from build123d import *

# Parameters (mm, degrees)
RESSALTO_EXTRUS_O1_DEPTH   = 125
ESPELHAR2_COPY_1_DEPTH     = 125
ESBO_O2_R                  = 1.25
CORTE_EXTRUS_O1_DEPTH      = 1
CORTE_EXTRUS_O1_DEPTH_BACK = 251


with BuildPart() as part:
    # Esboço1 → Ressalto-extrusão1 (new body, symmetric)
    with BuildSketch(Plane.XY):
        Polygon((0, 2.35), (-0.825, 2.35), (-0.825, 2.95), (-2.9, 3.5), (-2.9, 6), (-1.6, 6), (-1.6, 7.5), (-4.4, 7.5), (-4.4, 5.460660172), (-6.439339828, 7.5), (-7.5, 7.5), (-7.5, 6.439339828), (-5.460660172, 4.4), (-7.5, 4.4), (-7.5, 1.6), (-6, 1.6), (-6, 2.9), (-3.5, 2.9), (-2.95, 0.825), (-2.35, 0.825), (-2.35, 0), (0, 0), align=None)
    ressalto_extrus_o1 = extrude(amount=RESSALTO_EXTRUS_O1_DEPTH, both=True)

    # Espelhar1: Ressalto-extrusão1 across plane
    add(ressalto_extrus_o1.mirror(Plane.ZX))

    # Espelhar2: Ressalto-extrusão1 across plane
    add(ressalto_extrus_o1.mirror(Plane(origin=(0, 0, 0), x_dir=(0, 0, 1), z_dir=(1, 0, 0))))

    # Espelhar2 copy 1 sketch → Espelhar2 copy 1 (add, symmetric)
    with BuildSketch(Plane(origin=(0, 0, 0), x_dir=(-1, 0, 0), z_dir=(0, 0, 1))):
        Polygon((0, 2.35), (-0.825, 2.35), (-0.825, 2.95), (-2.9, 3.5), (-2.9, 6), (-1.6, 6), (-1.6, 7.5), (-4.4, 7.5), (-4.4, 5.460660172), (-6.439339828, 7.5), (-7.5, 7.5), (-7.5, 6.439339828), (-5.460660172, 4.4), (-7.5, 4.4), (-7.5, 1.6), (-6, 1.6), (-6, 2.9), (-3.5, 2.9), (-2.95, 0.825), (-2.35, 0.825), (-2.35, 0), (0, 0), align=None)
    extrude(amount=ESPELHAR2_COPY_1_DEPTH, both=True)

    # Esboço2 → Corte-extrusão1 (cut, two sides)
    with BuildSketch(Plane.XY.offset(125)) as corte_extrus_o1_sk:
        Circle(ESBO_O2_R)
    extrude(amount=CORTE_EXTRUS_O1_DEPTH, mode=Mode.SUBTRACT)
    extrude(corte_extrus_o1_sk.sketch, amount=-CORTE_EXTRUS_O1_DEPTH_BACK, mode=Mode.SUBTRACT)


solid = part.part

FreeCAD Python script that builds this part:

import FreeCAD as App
import Part
import Sketcher
from FreeCAD import Vector
Q = App.Units.Quantity


def add_polygon(sketch, points):
    """Adds a closed chain of lines whose ends are joined by coincident constraints."""
    first, n = sketch.GeometryCount, len(points)
    for a, b in zip(points, points[1:] + points[:1]):
        sketch.addGeometry(Part.LineSegment(App.Vector(*a, 0), App.Vector(*b, 0)), False)
    for i in range(n):
        sketch.addConstraint(Sketcher.Constraint("Coincident", first + i, 2, first + (i + 1) % n, 1))

doc = App.newDocument("Part")
body = doc.addObject("PartDesign::Body", "Body")

# Sketch on XY plane
sketch1 = body.newObject("Sketcher::SketchObject", "Sketch")
sketch1.AttachmentSupport = (doc.getObject("XY_Plane"), [""])
sketch1.MapMode = "FlatFace"
add_polygon(sketch1, [(0, 2.4), (-0.8, 2.4), (-0.8, 3), (-2.9, 3.5), (-2.9, 6), (-1.6, 6), (-1.6, 7.5), (-4.4, 7.5), (-4.4, 5.5), (-6.4, 7.5), (-7.5, 7.5), (-7.5, 6.4), (-5.5, 4.4), (-7.5, 4.4), (-7.5, 1.6), (-6, 1.6), (-6, 2.9), (-3.5, 2.9), (-3, 0.8), (-2.4, 0.8), (-2.4, 0), (0, 0)])  # lines 0-21
sketch1.addConstraint([
    Sketcher.Constraint("Horizontal", 0),
    Sketcher.Constraint("Vertical", 1),
    Sketcher.Constraint("Vertical", 3),
    Sketcher.Constraint("Horizontal", 4),
    Sketcher.Constraint("Vertical", 5),
    Sketcher.Constraint("Horizontal", 6),
    Sketcher.Constraint("Vertical", 7),
    Sketcher.Constraint("Horizontal", 9),
    Sketcher.Constraint("Vertical", 10),
    Sketcher.Constraint("Horizontal", 12),
    Sketcher.Constraint("Vertical", 13),
    Sketcher.Constraint("Horizontal", 14),
    Sketcher.Constraint("Vertical", 15),
    Sketcher.Constraint("Horizontal", 16),
    Sketcher.Constraint("Horizontal", 18),
    Sketcher.Constraint("Vertical", 19),
    Sketcher.Constraint("Horizontal", 20),
    Sketcher.Constraint("Vertical", 21),
    Sketcher.Constraint("Coincident", 20, 2, -1, 1),
    Sketcher.Constraint("Parallel", 8, 11),
    Sketcher.Constraint("Horizontal", 6, 2, 8, 2),
    Sketcher.Constraint("Vertical", 10, 2, 12, 2),
    Sketcher.Constraint("Equal", 18, 1),
    Sketcher.Constraint("Equal", 16, 3),
    Sketcher.Constraint("Equal", 14, 5),
    Sketcher.Constraint("Equal", 12, 7),
    Sketcher.Constraint("Equal", 9, 10),
    Sketcher.Constraint("Equal", 6, 13),
    Sketcher.Constraint("Equal", 4, 15),
    Sketcher.Constraint("Equal", 0, 19),
    Sketcher.Constraint("Equal", 20, 21),
    Sketcher.Constraint("Equal", 8, 11),
    Sketcher.Constraint("Equal", 2, 17),
    Sketcher.Constraint("DistanceX", 4, 1, 4, 2, Q("1.3 mm")),
    Sketcher.Constraint("DistanceX", 6, 2, 6, 1, Q("2.8 mm")),
    Sketcher.Constraint("DistanceX", 14, 1, 14, 2, Q("1.5 mm")),
    Sketcher.Constraint("DistanceX", 16, 1, 16, 2, Q("2.5 mm")),
    Sketcher.Constraint("DistanceX", 18, 1, 18, 2, Q("0.6 mm")),
    Sketcher.Constraint("DistanceY", -1, 1, 3, 2, Q("6 mm")),
    Sketcher.Constraint("DistanceX", 20, 1, 20, 2, Q("2.35 mm")),
    Sketcher.Constraint("DistanceX", 2, 2, -1, 1, Q("2.9 mm")),
    Sketcher.Constraint("DistanceX", 0, 2, 0, 1, Q("0.825 mm")),
    Sketcher.Constraint("DistanceX", 9, 2, 9, 1, Q("1.06066 mm")),
])
pad1 = body.newObject("PartDesign::Pad", "Pad")
pad1.Profile = sketch1
pad1.Length = 250
pad1.Midplane = True
doc.recompute()

mirrored = body.newObject("PartDesign::Mirrored", "Mirrored")
mirrored.Originals = [pad1]
mirrored.MirrorPlane = (doc.getObject("XZ_Plane"), [""])
body.Tip = mirrored
doc.recompute()

mirrored2 = body.newObject("PartDesign::Mirrored", "Mirrored001")
mirrored2.Originals = [pad1]
mirrored2.MirrorPlane = (doc.getObject("YZ_Plane"), [""])
body.Tip = mirrored2

# Sketch on XY plane
sketch2 = body.newObject("Sketcher::SketchObject", "Sketch001")
sketch2.AttachmentSupport = (doc.getObject("XY_Plane"), [""])
sketch2.MapMode = "FlatFace"
add_polygon(sketch2, [(0, -2.4), (0.8, -2.4), (0.8, -3), (2.9, -3.5), (2.9, -6), (1.6, -6), (1.6, -7.5), (4.4, -7.5), (4.4, -5.5), (6.4, -7.5), (7.5, -7.5), (7.5, -6.4), (5.5, -4.4), (7.5, -4.4), (7.5, -1.6), (6, -1.6), (6, -2.9), (3.5, -2.9), (3, -0.8), (2.4, -0.8), (2.4, 0), (0, 0)])  # lines 0-21
sketch2.addConstraint([
    Sketcher.Constraint("Horizontal", 0),
    Sketcher.Constraint("Vertical", 1),
    Sketcher.Constraint("Vertical", 3),
    Sketcher.Constraint("Horizontal", 4),
    Sketcher.Constraint("Vertical", 5),
    Sketcher.Constraint("Horizontal", 6),
    Sketcher.Constraint("Vertical", 7),
    Sketcher.Constraint("Horizontal", 9),
    Sketcher.Constraint("Vertical", 10),
    Sketcher.Constraint("Horizontal", 12),
    Sketcher.Constraint("Vertical", 13),
    Sketcher.Constraint("Horizontal", 14),
    Sketcher.Constraint("Vertical", 15),
    Sketcher.Constraint("Horizontal", 16),
    Sketcher.Constraint("Horizontal", 18),
    Sketcher.Constraint("Vertical", 19),
    Sketcher.Constraint("Horizontal", 20),
    Sketcher.Constraint("Vertical", 21),
    Sketcher.Constraint("Coincident", 20, 2, -1, 1),
    Sketcher.Constraint("Parallel", 8, 11),
    Sketcher.Constraint("Horizontal", 6, 2, 8, 2),
    Sketcher.Constraint("Vertical", 10, 2, 12, 2),
    Sketcher.Constraint("Equal", 18, 1),
    Sketcher.Constraint("Equal", 16, 3),
    Sketcher.Constraint("Equal", 14, 5),
    Sketcher.Constraint("Equal", 12, 7),
    Sketcher.Constraint("Equal", 9, 10),
    Sketcher.Constraint("Equal", 6, 13),
    Sketcher.Constraint("Equal", 4, 15),
    Sketcher.Constraint("Equal", 0, 19),
    Sketcher.Constraint("Equal", 20, 21),
    Sketcher.Constraint("Equal", 8, 11),
    Sketcher.Constraint("Equal", 2, 17),
    Sketcher.Constraint("DistanceX", 4, 2, 4, 1, Q("1.3 mm")),
    Sketcher.Constraint("DistanceX", 6, 1, 6, 2, Q("2.8 mm")),
    Sketcher.Constraint("DistanceX", 14, 2, 14, 1, Q("1.5 mm")),
    Sketcher.Constraint("DistanceX", 16, 2, 16, 1, Q("2.5 mm")),
    Sketcher.Constraint("DistanceX", 18, 2, 18, 1, Q("0.6 mm")),
    Sketcher.Constraint("DistanceY", 3, 2, -1, 1, Q("6 mm")),
    Sketcher.Constraint("DistanceX", 20, 2, 20, 1, Q("2.35 mm")),
    Sketcher.Constraint("DistanceX", -1, 1, 2, 2, Q("2.9 mm")),
    Sketcher.Constraint("DistanceX", 0, 1, 0, 2, Q("0.825 mm")),
    Sketcher.Constraint("DistanceX", 9, 1, 9, 2, Q("1.06066 mm")),
])
pad2 = body.newObject("PartDesign::Pad", "Pad001")
pad2.Profile = sketch2
pad2.Length = 250
pad2.Midplane = True

# Sketch on XY plane
sketch3 = body.newObject("Sketcher::SketchObject", "Sketch002")
sketch3.AttachmentSupport = (doc.getObject("XY_Plane"), [""])
sketch3.MapMode = "FlatFace"
sketch3.AttachmentOffset = App.Placement(Vector(0, 0, 125), App.Rotation())
sketch3.addGeometry(Part.Circle(Vector(0, 0, 0), Vector(0, 0, 1), 1.2), False)
sketch3.addConstraint([
    Sketcher.Constraint("Coincident", 0, 3, -1, 1),
    Sketcher.Constraint("Diameter", 0, Q("2.5 mm")),
])
pocket1 = body.newObject("PartDesign::Pocket", "Pocket")
pocket1.Profile = sketch3
pocket1.Type = "ThroughAll"
pocket1.Midplane = True

doc.recompute()
